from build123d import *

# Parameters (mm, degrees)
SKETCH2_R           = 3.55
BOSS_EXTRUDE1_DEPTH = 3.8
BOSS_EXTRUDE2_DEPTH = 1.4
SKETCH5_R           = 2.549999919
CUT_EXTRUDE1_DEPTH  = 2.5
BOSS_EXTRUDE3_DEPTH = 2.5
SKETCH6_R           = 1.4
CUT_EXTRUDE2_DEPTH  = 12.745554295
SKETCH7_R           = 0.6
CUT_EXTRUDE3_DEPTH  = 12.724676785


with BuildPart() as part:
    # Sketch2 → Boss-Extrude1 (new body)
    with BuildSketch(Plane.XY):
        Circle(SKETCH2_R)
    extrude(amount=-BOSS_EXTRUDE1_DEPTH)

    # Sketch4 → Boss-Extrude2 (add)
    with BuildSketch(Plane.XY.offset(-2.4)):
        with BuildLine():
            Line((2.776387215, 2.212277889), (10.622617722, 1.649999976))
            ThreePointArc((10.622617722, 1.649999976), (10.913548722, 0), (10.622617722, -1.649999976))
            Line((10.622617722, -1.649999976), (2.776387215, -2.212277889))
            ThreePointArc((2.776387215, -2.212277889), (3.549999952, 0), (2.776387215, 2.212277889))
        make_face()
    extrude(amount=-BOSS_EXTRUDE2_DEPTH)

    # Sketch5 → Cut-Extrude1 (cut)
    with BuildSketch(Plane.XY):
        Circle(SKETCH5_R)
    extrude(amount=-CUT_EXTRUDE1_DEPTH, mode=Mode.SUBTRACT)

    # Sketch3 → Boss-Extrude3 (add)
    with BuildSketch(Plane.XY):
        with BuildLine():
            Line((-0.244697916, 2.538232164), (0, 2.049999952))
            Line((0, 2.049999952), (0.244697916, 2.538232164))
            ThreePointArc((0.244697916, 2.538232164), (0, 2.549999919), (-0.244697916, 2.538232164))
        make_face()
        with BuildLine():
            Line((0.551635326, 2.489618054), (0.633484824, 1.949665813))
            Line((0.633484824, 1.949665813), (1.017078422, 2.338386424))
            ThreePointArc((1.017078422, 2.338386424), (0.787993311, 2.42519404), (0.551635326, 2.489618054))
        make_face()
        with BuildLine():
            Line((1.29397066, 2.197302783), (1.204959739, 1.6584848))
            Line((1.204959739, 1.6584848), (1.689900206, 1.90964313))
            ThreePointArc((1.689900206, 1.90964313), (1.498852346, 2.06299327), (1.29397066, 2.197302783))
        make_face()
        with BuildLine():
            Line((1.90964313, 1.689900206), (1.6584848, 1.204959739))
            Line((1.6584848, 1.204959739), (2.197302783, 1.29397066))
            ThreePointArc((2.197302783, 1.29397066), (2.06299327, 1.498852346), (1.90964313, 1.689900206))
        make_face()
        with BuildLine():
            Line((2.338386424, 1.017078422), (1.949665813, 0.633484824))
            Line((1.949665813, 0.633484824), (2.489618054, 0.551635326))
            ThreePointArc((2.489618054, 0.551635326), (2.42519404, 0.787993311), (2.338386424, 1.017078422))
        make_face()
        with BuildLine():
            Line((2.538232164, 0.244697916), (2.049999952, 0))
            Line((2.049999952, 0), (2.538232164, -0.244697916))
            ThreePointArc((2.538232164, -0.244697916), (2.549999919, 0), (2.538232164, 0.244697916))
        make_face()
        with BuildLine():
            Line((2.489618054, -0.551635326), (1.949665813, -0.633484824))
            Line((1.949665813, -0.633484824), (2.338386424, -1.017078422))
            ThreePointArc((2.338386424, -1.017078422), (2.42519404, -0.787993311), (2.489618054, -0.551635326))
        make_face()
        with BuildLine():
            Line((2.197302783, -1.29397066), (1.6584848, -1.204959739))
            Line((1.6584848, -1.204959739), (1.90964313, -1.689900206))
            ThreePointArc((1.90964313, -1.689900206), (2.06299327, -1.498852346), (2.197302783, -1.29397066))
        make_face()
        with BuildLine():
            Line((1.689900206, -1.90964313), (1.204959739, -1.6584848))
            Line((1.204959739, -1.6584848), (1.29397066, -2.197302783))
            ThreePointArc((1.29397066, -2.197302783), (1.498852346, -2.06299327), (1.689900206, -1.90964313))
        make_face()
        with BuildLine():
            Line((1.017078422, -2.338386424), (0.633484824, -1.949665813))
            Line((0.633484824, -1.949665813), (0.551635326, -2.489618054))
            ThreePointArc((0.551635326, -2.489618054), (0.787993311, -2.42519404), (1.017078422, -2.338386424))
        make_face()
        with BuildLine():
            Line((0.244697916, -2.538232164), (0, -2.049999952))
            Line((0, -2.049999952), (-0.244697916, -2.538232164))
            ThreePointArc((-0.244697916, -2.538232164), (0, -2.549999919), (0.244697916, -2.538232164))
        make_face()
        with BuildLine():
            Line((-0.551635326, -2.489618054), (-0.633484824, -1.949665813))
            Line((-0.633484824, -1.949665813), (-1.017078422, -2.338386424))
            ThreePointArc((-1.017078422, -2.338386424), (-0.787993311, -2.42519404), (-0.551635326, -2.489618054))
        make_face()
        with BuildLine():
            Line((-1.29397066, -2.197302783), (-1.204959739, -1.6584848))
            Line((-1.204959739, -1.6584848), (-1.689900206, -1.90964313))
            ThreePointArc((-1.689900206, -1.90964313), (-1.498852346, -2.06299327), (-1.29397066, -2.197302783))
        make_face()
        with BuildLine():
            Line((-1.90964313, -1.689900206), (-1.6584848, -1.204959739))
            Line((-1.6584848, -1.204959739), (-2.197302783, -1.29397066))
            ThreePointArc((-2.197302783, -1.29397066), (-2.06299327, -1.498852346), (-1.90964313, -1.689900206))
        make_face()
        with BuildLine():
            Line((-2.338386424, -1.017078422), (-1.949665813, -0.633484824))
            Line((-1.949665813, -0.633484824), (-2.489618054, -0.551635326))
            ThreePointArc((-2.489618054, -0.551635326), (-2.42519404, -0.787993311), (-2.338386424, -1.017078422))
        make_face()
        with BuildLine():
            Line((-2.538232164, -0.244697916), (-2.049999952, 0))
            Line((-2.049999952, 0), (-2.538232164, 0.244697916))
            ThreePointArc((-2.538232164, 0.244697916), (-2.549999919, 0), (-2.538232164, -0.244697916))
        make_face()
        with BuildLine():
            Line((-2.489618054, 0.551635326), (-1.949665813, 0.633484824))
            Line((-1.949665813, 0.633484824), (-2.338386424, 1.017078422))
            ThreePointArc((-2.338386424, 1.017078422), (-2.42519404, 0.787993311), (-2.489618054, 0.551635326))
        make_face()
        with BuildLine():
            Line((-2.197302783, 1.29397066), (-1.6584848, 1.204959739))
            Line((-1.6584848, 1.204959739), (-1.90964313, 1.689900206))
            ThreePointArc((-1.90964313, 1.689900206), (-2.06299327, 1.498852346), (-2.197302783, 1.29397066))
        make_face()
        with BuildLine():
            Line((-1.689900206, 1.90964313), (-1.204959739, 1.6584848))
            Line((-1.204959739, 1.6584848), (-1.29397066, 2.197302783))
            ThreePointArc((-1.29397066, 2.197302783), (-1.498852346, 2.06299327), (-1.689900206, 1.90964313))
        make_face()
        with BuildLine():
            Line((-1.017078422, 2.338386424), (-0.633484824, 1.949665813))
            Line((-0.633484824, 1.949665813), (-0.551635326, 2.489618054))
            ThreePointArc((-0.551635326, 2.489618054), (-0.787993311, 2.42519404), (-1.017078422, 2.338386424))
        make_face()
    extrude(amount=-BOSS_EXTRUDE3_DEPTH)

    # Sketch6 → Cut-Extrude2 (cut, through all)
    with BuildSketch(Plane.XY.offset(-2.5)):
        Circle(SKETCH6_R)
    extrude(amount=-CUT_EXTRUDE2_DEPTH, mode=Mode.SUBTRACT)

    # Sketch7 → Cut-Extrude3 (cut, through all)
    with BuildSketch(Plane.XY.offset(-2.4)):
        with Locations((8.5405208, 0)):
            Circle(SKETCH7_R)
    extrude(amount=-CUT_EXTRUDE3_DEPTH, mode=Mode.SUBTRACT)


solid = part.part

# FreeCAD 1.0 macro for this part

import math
import FreeCAD as App
import Part
import Sketcher

V = App.Vector

doc = App.newDocument("Part")
body = doc.addObject("PartDesign::Body", "Body")

sketch1 = body.newObject("Sketcher::SketchObject", "Sketch")
sketch1.AttachmentSupport = (doc.getObject("XY_Plane"), [""])
sketch1.MapMode = "FlatFace"
sketch1.addGeometry(Part.Circle(V(0, 0, 0), V(0, 0, 1), 3.5), False)
sketch1.addConstraint([
    Sketcher.Constraint("Coincident", 0, 3, -1, 1),
    Sketcher.Constraint("Diameter", 0, 7.1),
])
pad1 = body.newObject("PartDesign::Pad", "Pad")
pad1.Profile = sketch1
pad1.Length = 3.8
pad1.Reversed = True

sketch2 = body.newObject("Sketcher::SketchObject", "Sketch001")
sketch2.AttachmentSupport = (doc.getObject("XY_Plane"), [""])
sketch2.MapMode = "FlatFace"
sketch2.AttachmentOffset = App.Placement(V(0, 0, -2.4), App.Rotation())
sketch2.addGeometry([
    Part.LineSegment(V(10.6, 1.6, 0), V(2.8, 2.2, 0)),
    Part.ArcOfCircle(Part.Circle(V(0, 0, 0), V(0, 0, 1), 3.5), math.radians(-39), math.radians(39)),
    Part.LineSegment(V(2.8, -2.2, 0), V(10.6, -1.6, 0)),
    Part.ArcOfCircle(Part.Circle(V(6.1, 0, 0), V(0, 0, 1), 4.8), math.radians(-20), math.radians(20)),
], False)
sketch2.addConstraint([
    Sketcher.Constraint("Coincident", 0, 2, 1, 2),
    Sketcher.Constraint("Coincident", 1, 1, 2, 1),
    Sketcher.Constraint("Coincident", 2, 2, 3, 1),
    Sketcher.Constraint("Coincident", 3, 2, 0, 1),
    Sketcher.Constraint("Coincident", 1, 3, -1, 1),
    Sketcher.Constraint("Symmetric", 2, 2, 3, 2, -1),
    Sketcher.Constraint("Vertical", 0, 2, 1, 1),
    Sketcher.Constraint("Radius", 1, 3.55),
    Sketcher.Constraint("DistanceY", 2, 2, 3, 2, 3.3),
    Sketcher.Constraint("Radius", 3, 4.82441),
    Sketcher.Constraint("Distance", 0, 7.866352),
    Sketcher.Constraint("DistanceX", -1, 1, 3, 3, 6.089139),
])
pad2 = body.newObject("PartDesign::Pad", "Pad001")
pad2.Profile = sketch2
pad2.Length = 1.4
pad2.Reversed = True

sketch3 = body.newObject("Sketcher::SketchObject", "Sketch002")
sketch3.AttachmentSupport = (doc.getObject("XY_Plane"), [""])
sketch3.MapMode = "FlatFace"
sketch3.addGeometry(Part.Circle(V(0, 0, 0), V(0, 0, 1), 2.5), False)
sketch3.addConstraint([
    Sketcher.Constraint("Coincident", 0, 3, -1, 1),
    Sketcher.Constraint("Diameter", 0, 5.1),
])
pocket1 = body.newObject("PartDesign::Pocket", "Pocket")
pocket1.Profile = sketch3
pocket1.Length = 2.5

sketch4 = body.newObject("Sketcher::SketchObject", "Sketch003")
sketch4.AttachmentSupport = (doc.getObject("XY_Plane"), [""])
sketch4.MapMode = "FlatFace"
sketch4.addGeometry([
    Part.LineSegment(V(-0.24, 2.54, 0), V(0, 2.05, 0)),
    Part.LineSegment(V(0, 2.05, 0), V(0.24, 2.54, 0)),
    Part.ArcOfCircle(Part.Circle(V(0, 0, 0), V(0, 0, 1), 2.55), math.radians(84.49), math.radians(95.51)),
    Part.LineSegment(V(0.55, 2.49, 0), V(0.63, 1.95, 0)),
    Part.LineSegment(V(0.63, 1.95, 0), V(1.02, 2.34, 0)),
    Part.ArcOfCircle(Part.Circle(V(0, 0, 0), V(0, 0, 1), 2.55), math.radians(66.49), math.radians(77.51)),
    Part.LineSegment(V(1.29, 2.2, 0), V(1.2, 1.66, 0)),
    Part.LineSegment(V(1.2, 1.66, 0), V(1.69, 1.91, 0)),
    Part.ArcOfCircle(Part.Circle(V(0, 0, 0), V(0, 0, 1), 2.55), math.radians(48.49), math.radians(59.51)),
    Part.LineSegment(V(1.91, 1.69, 0), V(1.66, 1.2, 0)),
    Part.LineSegment(V(1.66, 1.2, 0), V(2.2, 1.29, 0)),
    Part.ArcOfCircle(Part.Circle(V(0, 0, 0), V(0, 0, 1), 2.55), math.radians(30.49), math.radians(41.51)),
    Part.LineSegment(V(2.34, 1.02, 0), V(1.95, 0.63, 0)),
    Part.LineSegment(V(1.95, 0.63, 0), V(2.49, 0.55, 0)),
    Part.ArcOfCircle(Part.Circle(V(0, 0, 0), V(0, 0, 1), 2.55), math.radians(12.49), math.radians(23.51)),
    Part.LineSegment(V(2.54, 0.24, 0), V(2.05, 0, 0)),
    Part.LineSegment(V(2.05, 0, 0), V(2.54, -0.24, 0)),
    Part.ArcOfCircle(Part.Circle(V(0, 0, 0), V(0, 0, 1), 2.55), math.radians(-5.51), math.radians(5.51)),
    Part.LineSegment(V(2.49, -0.55, 0), V(1.95, -0.63, 0)),
    Part.LineSegment(V(1.95, -0.63, 0), V(2.34, -1.02, 0)),
    Part.ArcOfCircle(Part.Circle(V(0, 0, 0), V(0, 0, 1), 2.55), math.radians(-23.51), math.radians(-12.49)),
    Part.LineSegment(V(2.2, -1.29, 0), V(1.66, -1.2, 0)),
    Part.LineSegment(V(1.66, -1.2, 0), V(1.91, -1.69, 0)),
    Part.ArcOfCircle(Part.Circle(V(0, 0, 0), V(0, 0, 1), 2.55), math.radians(-41.51), math.radians(-30.49)),
    Part.LineSegment(V(1.69, -1.91, 0), V(1.2, -1.66, 0)),
    Part.LineSegment(V(1.2, -1.66, 0), V(1.29, -2.2, 0)),
    Part.ArcOfCircle(Part.Circle(V(0, 0, 0), V(0, 0, 1), 2.55), math.radians(-59.51), math.radians(-48.49)),
    Part.LineSegment(V(1.02, -2.34, 0), V(0.63, -1.95, 0)),
    Part.LineSegment(V(0.63, -1.95, 0), V(0.55, -2.49, 0)),
    Part.ArcOfCircle(Part.Circle(V(0, 0, 0), V(0, 0, 1), 2.55), math.radians(-77.51), math.radians(-66.49)),
    Part.LineSegment(V(0.24, -2.54, 0), V(0, -2.05, 0)),
    Part.LineSegment(V(0, -2.05, 0), V(-0.24, -2.54, 0)),
    Part.ArcOfCircle(Part.Circle(V(0, 0, 0), V(0, 0, 1), 2.55), math.radians(-95.51), math.radians(-84.49)),
    Part.LineSegment(V(-0.55, -2.49, 0), V(-0.63, -1.95, 0)),
    Part.LineSegment(V(-0.63, -1.95, 0), V(-1.02, -2.34, 0)),
    Part.ArcOfCircle(Part.Circle(V(0, 0, 0), V(0, 0, 1), 2.55), math.radians(-113.51), math.radians(-102.49)),
    Part.LineSegment(V(-1.29, -2.2, 0), V(-1.2, -1.66, 0)),
    Part.LineSegment(V(-1.2, -1.66, 0), V(-1.69, -1.91, 0)),
    Part.ArcOfCircle(Part.Circle(V(0, 0, 0), V(0, 0, 1), 2.55), math.radians(-131.51), math.radians(-120.49)),
    Part.LineSegment(V(-1.91, -1.69, 0), V(-1.66, -1.2, 0)),
    Part.LineSegment(V(-1.66, -1.2, 0), V(-2.2, -1.29, 0)),
    Part.ArcOfCircle(Part.Circle(V(0, 0, 0), V(0, 0, 1), 2.55), math.radians(-149.51), math.radians(-138.49)),
    Part.LineSegment(V(-2.34, -1.02, 0), V(-1.95, -0.63, 0)),
    Part.LineSegment(V(-1.95, -0.63, 0), V(-2.49, -0.55, 0)),
    Part.ArcOfCircle(Part.Circle(V(0, 0, 0), V(0, 0, 1), 2.55), math.radians(-167.51), math.radians(-156.49)),
    Part.LineSegment(V(-2.54, -0.24, 0), V(-2.05, 0, 0)),
    Part.LineSegment(V(-2.05, 0, 0), V(-2.54, 0.24, 0)),
    Part.ArcOfCircle(Part.Circle(V(0, 0, 0), V(0, 0, 1), 2.55), math.radians(174.49), math.radians(185.51)),
    Part.LineSegment(V(-2.49, 0.55, 0), V(-1.95, 0.63, 0)),
    Part.LineSegment(V(-1.95, 0.63, 0), V(-2.34, 1.02, 0)),
    Part.ArcOfCircle(Part.Circle(V(0, 0, 0), V(0, 0, 1), 2.55), math.radians(156.49), math.radians(167.51)),
    Part.LineSegment(V(-2.2, 1.29, 0), V(-1.66, 1.2, 0)),
    Part.LineSegment(V(-1.66, 1.2, 0), V(-1.91, 1.69, 0)),
    Part.ArcOfCircle(Part.Circle(V(0, 0, 0), V(0, 0, 1), 2.55), math.radians(138.49), math.radians(149.51)),
    Part.LineSegment(V(-1.69, 1.91, 0), V(-1.2, 1.66, 0)),
    Part.LineSegment(V(-1.2, 1.66, 0), V(-1.29, 2.2, 0)),
    Part.ArcOfCircle(Part.Circle(V(0, 0, 0), V(0, 0, 1), 2.55), math.radians(120.49), math.radians(131.51)),
    Part.LineSegment(V(-1.02, 2.34, 0), V(-0.63, 1.95, 0)),
    Part.LineSegment(V(-0.63, 1.95, 0), V(-0.55, 2.49, 0)),
    Part.ArcOfCircle(Part.Circle(V(0, 0, 0), V(0, 0, 1), 2.55), math.radians(102.49), math.radians(113.51)),
], False)
sketch4.addConstraint([
    Sketcher.Constraint("Coincident", 0, 2, 1, 1),
    Sketcher.Constraint("Coincident", 1, 2, 2, 1),
    Sketcher.Constraint("Coincident", 2, 2, 0, 1),
    Sketcher.Constraint("Coincident", 3, 2, 4, 1),
    Sketcher.Constraint("Coincident", 4, 2, 5, 1),
    Sketcher.Constraint("Coincident", 5, 2, 3, 1),
    Sketcher.Constraint("Coincident", 6, 2, 7, 1),
    Sketcher.Constraint("Coincident", 7, 2, 8, 1),
    Sketcher.Constraint("Coincident", 8, 2, 6, 1),
    Sketcher.Constraint("Coincident", 9, 2, 10, 1),
    Sketcher.Constraint("Coincident", 10, 2, 11, 1),
    Sketcher.Constraint("Coincident", 11, 2, 9, 1),
    Sketcher.Constraint("Coincident", 12, 2, 13, 1),
    Sketcher.Constraint("Coincident", 13, 2, 14, 1),
    Sketcher.Constraint("Coincident", 14, 2, 12, 1),
    Sketcher.Constraint("Coincident", 15, 2, 16, 1),
    Sketcher.Constraint("Coincident", 16, 2, 17, 1),
    Sketcher.Constraint("Coincident", 17, 2, 15, 1),
    Sketcher.Constraint("Coincident", 18, 2, 19, 1),
    Sketcher.Constraint("Coincident", 19, 2, 20, 1),
    Sketcher.Constraint("Coincident", 20, 2, 18, 1),
    Sketcher.Constraint("Coincident", 21, 2, 22, 1),
    Sketcher.Constraint("Coincident", 22, 2, 23, 1),
    Sketcher.Constraint("Coincident", 23, 2, 21, 1),
    Sketcher.Constraint("Coincident", 24, 2, 25, 1),
    Sketcher.Constraint("Coincident", 25, 2, 26, 1),
    Sketcher.Constraint("Coincident", 26, 2, 24, 1),
    Sketcher.Constraint("Coincident", 27, 2, 28, 1),
    Sketcher.Constraint("Coincident", 28, 2, 29, 1),
    Sketcher.Constraint("Coincident", 29, 2, 27, 1),
    Sketcher.Constraint("Coincident", 30, 2, 31, 1),
    Sketcher.Constraint("Coincident", 31, 2, 32, 1),
    Sketcher.Constraint("Coincident", 32, 2, 30, 1),
    Sketcher.Constraint("Coincident", 33, 2, 34, 1),
    Sketcher.Constraint("Coincident", 34, 2, 35, 1),
    Sketcher.Constraint("Coincident", 35, 2, 33, 1),
    Sketcher.Constraint("Coincident", 36, 2, 37, 1),
    Sketcher.Constraint("Coincident", 37, 2, 38, 1),
    Sketcher.Constraint("Coincident", 38, 2, 36, 1),
    Sketcher.Constraint("Coincident", 39, 2, 40, 1),
    Sketcher.Constraint("Coincident", 40, 2, 41, 1),
    Sketcher.Constraint("Coincident", 41, 2, 39, 1),
    Sketcher.Constraint("Coincident", 42, 2, 43, 1),
    Sketcher.Constraint("Coincident", 43, 2, 44, 1),
    Sketcher.Constraint("Coincident", 44, 2, 42, 1),
    Sketcher.Constraint("Coincident", 45, 2, 46, 1),
    Sketcher.Constraint("Coincident", 46, 2, 47, 1),
    Sketcher.Constraint("Coincident", 47, 2, 45, 1),
    Sketcher.Constraint("Coincident", 48, 2, 49, 1),
    Sketcher.Constraint("Coincident", 49, 2, 50, 1),
    Sketcher.Constraint("Coincident", 50, 2, 48, 1),
    Sketcher.Constraint("Coincident", 51, 2, 52, 1),
    Sketcher.Constraint("Coincident", 52, 2, 53, 1),
    Sketcher.Constraint("Coincident", 53, 2, 51, 1),
    Sketcher.Constraint("Coincident", 54, 2, 55, 1),
    Sketcher.Constraint("Coincident", 55, 2, 56, 1),
    Sketcher.Constraint("Coincident", 56, 2, 54, 1),
    Sketcher.Constraint("Coincident", 57, 2, 58, 1),
    Sketcher.Constraint("Coincident", 58, 2, 59, 1),
    Sketcher.Constraint("Coincident", 59, 2, 57, 1),
    Sketcher.Constraint("Coincident", 2, 3, -1, 1),
    Sketcher.Constraint("Coincident", 5, 3, -1, 1),
    Sketcher.Constraint("Coincident", 8, 3, -1, 1),
    Sketcher.Constraint("Coincident", 11, 3, -1, 1),
    Sketcher.Constraint("Coincident", 14, 3, -1, 1),
    Sketcher.Constraint("Coincident", 17, 3, -1, 1),
    Sketcher.Constraint("Coincident", 20, 3, -1, 1),
    Sketcher.Constraint("Coincident", 23, 3, -1, 1),
    Sketcher.Constraint("Coincident", 26, 3, -1, 1),
    Sketcher.Constraint("Coincident", 29, 3, -1, 1),
    Sketcher.Constraint("Coincident", 32, 3, -1, 1),
    Sketcher.Constraint("Coincident", 35, 3, -1, 1),
    Sketcher.Constraint("Coincident", 38, 3, -1, 1),
    Sketcher.Constraint("Coincident", 41, 3, -1, 1),
    Sketcher.Constraint("Coincident", 44, 3, -1, 1),
    Sketcher.Constraint("Coincident", 47, 3, -1, 1),
    Sketcher.Constraint("Coincident", 50, 3, -1, 1),
    Sketcher.Constraint("Coincident", 53, 3, -1, 1),
    Sketcher.Constraint("Coincident", 56, 3, -1, 1),
    Sketcher.Constraint("Coincident", 59, 3, -1, 1),
    Sketcher.Constraint("Equal", 2, 5),
    Sketcher.Constraint("Equal", 5, 8),
    Sketcher.Constraint("Equal", 8, 11),
    Sketcher.Constraint("Equal", 11, 14),
    Sketcher.Constraint("Equal", 14, 17),
    Sketcher.Constraint("Equal", 17, 20),
    Sketcher.Constraint("Equal", 20, 23),
    Sketcher.Constraint("Equal", 23, 26),
    Sketcher.Constraint("Equal", 26, 29),
    Sketcher.Constraint("Equal", 29, 32),
    Sketcher.Constraint("Equal", 32, 35),
    Sketcher.Constraint("Equal", 35, 38),
    Sketcher.Constraint("Equal", 38, 41),
    Sketcher.Constraint("Equal", 41, 44),
    Sketcher.Constraint("Equal", 44, 47),
    Sketcher.Constraint("Equal", 47, 50),
    Sketcher.Constraint("Equal", 50, 53),
    Sketcher.Constraint("Equal", 53, 56),
    Sketcher.Constraint("Equal", 56, 59),
    Sketcher.Constraint("Symmetric", 0, 2, 30, 2, -1, 1),
    Sketcher.Constraint("Symmetric", 3, 2, 33, 2, -1, 1),
    Sketcher.Constraint("Symmetric", 6, 2, 36, 2, -1, 1),
    Sketcher.Constraint("Symmetric", 9, 2, 39, 2, -1, 1),
    Sketcher.Constraint("Symmetric", 12, 2, 42, 2, -1, 1),
    Sketcher.Constraint("Symmetric", 15, 2, 45, 2, -1, 1),
    Sketcher.Constraint("Symmetric", 18, 2, 48, 2, -1, 1),
    Sketcher.Constraint("Symmetric", 21, 2, 51, 2, -1, 1),
    Sketcher.Constraint("Symmetric", 24, 2, 54, 2, -1, 1),
    Sketcher.Constraint("Symmetric", 27, 2, 57, 2, -1, 1),
    Sketcher.Constraint("Symmetric", 27, 2, 33, 2, -2),
    Sketcher.Constraint("Symmetric", 24, 2, 36, 2, -2),
    Sketcher.Constraint("Symmetric", 21, 2, 39, 2, -2),
    Sketcher.Constraint("Symmetric", 18, 2, 42, 2, -2),
    Sketcher.Constraint("PointOnObject", 0, 2, -2),
    Sketcher.Constraint("PointOnObject", 15, 2, -1),
    Sketcher.Constraint("Perpendicular", 0, 15),
    Sketcher.Constraint("Perpendicular", 1, 16),
    Sketcher.Constraint("Perpendicular", 3, 18),
    Sketcher.Constraint("Perpendicular", 4, 19),
    Sketcher.Constraint("Perpendicular", 6, 21),
    Sketcher.Constraint("Perpendicular", 7, 22),
    Sketcher.Constraint("Perpendicular", 9, 24),
    Sketcher.Constraint("Perpendicular", 10, 25),
    Sketcher.Constraint("Perpendicular", 12, 27),
    Sketcher.Constraint("Perpendicular", 13, 28),
    Sketcher.Constraint("Perpendicular", 15, 30),
    Sketcher.Constraint("Perpendicular", 16, 31),
    Sketcher.Constraint("Perpendicular", 18, 33),
    Sketcher.Constraint("Perpendicular", 19, 34),
    Sketcher.Constraint("Perpendicular", 21, 36),
    Sketcher.Constraint("Perpendicular", 22, 37),
    Sketcher.Constraint("Perpendicular", 24, 39),
    Sketcher.Constraint("Perpendicular", 25, 40),
    Sketcher.Constraint("Perpendicular", 27, 42),
    Sketcher.Constraint("Perpendicular", 28, 43),
    Sketcher.Constraint("Perpendicular", 30, 45),
    Sketcher.Constraint("Perpendicular", 31, 46),
    Sketcher.Constraint("Perpendicular", 33, 48),
    Sketcher.Constraint("Perpendicular", 34, 49),
    Sketcher.Constraint("Perpendicular", 36, 51),
    Sketcher.Constraint("Perpendicular", 37, 52),
    Sketcher.Constraint("Perpendicular", 39, 54),
    Sketcher.Constraint("Perpendicular", 40, 55),
    Sketcher.Constraint("Perpendicular", 42, 57),
    Sketcher.Constraint("Perpendicular", 43, 58),
    Sketcher.Constraint("Horizontal", 1, 2, 2, 2),
    Sketcher.Constraint("Horizontal", 29, 2, 34, 2),
    Sketcher.Constraint("Horizontal", 28, 2, 35, 2),
    Sketcher.Constraint("Horizontal", 26, 2, 37, 2),
    Sketcher.Constraint("Horizontal", 25, 2, 38, 2),
    Sketcher.Constraint("Equal", 1, 3),
    Sketcher.Constraint("Equal", 3, 4),
    Sketcher.Constraint("Equal", 4, 6),
    Sketcher.Constraint("Equal", 6, 7),
    Sketcher.Constraint("Equal", 7, 9),
    Sketcher.Constraint("Equal", 9, 10),
    Sketcher.Constraint("Equal", 10, 12),
    Sketcher.Constraint("Equal", 12, 13),
    Sketcher.Constraint("Equal", 13, 15),
    Sketcher.Constraint("Radius", 2, 2.55),
    Sketcher.Constraint("DistanceY", -1, 1, 0, 2, 2.05),
    Sketcher.Constraint("DistanceX", -1, 1, 7, 2, 1.6899),
    Sketcher.Constraint("Distance", 0, 0.546121),
    Sketcher.Constraint("DistanceX", -1, 1, 4, 2, 1.017078),
    Sketcher.Constraint("DistanceY", -1, 1, 5, 2, 2.489618),
    Sketcher.Constraint("DistanceX", -1, 1, 6, 2, 1.20496),
])
pad3 = body.newObject("PartDesign::Pad", "Pad002")
pad3.Profile = sketch4
pad3.Length = 2.5
pad3.Reversed = True

sketch5 = body.newObject("Sketcher::SketchObject", "Sketch004")
sketch5.AttachmentSupport = (doc.getObject("XY_Plane"), [""])
sketch5.MapMode = "FlatFace"
sketch5.AttachmentOffset = App.Placement(V(0, 0, -2.5), App.Rotation())
sketch5.addGeometry(Part.Circle(V(0, 0, 0), V(0, 0, 1), 1.4), False)
sketch5.addConstraint([
    Sketcher.Constraint("Coincident", 0, 3, -1, 1),
    Sketcher.Constraint("Diameter", 0, 2.8),
])
pocket2 = body.newObject("PartDesign::Pocket", "Pocket001")
pocket2.Profile = sketch5
pocket2.Type = "ThroughAll"

sketch6 = body.newObject("Sketcher::SketchObject", "Sketch005")
sketch6.AttachmentSupport = (doc.getObject("XY_Plane"), [""])
sketch6.MapMode = "FlatFace"
sketch6.AttachmentOffset = App.Placement(V(0, 0, -2.4), App.Rotation())
sketch6.addGeometry(Part.Circle(V(8.5, 0, 0), V(0, 0, 1), 0.6), False)
sketch6.addConstraint([
    Sketcher.Constraint("PointOnObject", 0, 3, -1),
    Sketcher.Constraint("Diameter", 0, 1.2),
    Sketcher.Constraint("DistanceX", -1, 1, 0, 3, 8.540521),
])
pocket3 = body.newObject("PartDesign::Pocket", "Pocket002")
pocket3.Profile = sketch6
pocket3.Type = "ThroughAll"

doc.recompute()
